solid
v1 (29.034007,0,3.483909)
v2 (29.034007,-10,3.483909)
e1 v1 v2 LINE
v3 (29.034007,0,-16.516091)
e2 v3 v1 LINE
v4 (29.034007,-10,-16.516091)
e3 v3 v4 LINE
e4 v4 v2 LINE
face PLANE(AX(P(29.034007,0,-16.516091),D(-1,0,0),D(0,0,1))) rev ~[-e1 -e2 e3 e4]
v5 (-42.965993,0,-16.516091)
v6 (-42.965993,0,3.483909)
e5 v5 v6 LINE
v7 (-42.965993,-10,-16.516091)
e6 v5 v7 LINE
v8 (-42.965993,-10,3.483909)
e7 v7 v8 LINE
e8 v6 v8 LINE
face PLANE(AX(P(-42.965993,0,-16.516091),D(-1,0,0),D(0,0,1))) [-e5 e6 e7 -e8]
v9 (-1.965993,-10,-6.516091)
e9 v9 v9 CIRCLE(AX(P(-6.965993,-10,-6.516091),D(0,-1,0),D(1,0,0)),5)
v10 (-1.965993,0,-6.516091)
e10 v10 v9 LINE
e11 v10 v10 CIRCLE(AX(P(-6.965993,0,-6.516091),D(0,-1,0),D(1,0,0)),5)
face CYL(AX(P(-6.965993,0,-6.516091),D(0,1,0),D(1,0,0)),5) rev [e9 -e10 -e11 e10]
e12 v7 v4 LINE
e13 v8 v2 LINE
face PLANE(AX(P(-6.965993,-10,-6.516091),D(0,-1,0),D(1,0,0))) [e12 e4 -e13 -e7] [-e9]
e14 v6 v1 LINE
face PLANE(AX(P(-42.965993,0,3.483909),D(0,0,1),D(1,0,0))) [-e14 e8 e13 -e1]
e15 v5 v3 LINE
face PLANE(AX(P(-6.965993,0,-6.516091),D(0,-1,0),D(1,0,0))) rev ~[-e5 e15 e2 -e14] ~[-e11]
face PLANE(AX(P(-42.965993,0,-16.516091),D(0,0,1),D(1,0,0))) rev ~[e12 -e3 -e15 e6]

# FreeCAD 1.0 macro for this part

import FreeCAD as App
import Part
import Sketcher
from FreeCAD import Vector


def add_polygon(sketch, points):
    """Adds a closed chain of lines whose ends are joined by coincident constraints."""
    first, n = sketch.GeometryCount, len(points)
    for a, b in zip(points, points[1:] + points[:1]):
        sketch.addGeometry(Part.LineSegment(App.Vector(*a, 0), App.Vector(*b, 0)), False)
    for i in range(n):
        sketch.addConstraint(Sketcher.Constraint("Coincident", first + i, 2, first + (i + 1) % n, 1))

doc = App.newDocument("Part")
params = doc.addObject("Spreadsheet::Sheet", "Params")
for row, (alias, value) in enumerate([
    ("sketch1_diameter", "10 mm"),
    ("sketch1_width", "72 mm"),
    ("sketch1_height", "20 mm"),
    ("pad1_length", "10 mm"),
], start=1):
    params.set(f"A{row}", alias)
    params.set(f"B{row}", "=" + value)
    params.setAlias(f"B{row}", alias)

body = doc.addObject("PartDesign::Body", "Body")

# Sketch on XZ plane
sketch1 = doc.addObject("Sketcher::SketchObject", "Sketch")
body.addObject(sketch1)
sketch1.AttachmentSupport = (doc.XZ_Plane, [""])
sketch1.MapMode = "FlatFace"
add_polygon(sketch1, [(-43, 3), (-43, -17), (29, -17), (29, 3)])  # lines 0-3
sketch1.addGeometry(Part.Circle(Vector(-7, -7, 0), Vector(0, 0, 1), 5), False)  # 4
sketch1.addConstraint([
    Sketcher.Constraint("Vertical", 0),
    Sketcher.Constraint("Horizontal", 1),
    Sketcher.Constraint("Vertical", 2),
    Sketcher.Constraint("Horizontal", 3),
    Sketcher.Constraint("Diameter", 4, 10.0),
    Sketcher.Constraint("DistanceX", 1, 1, 1, 2, 72.0),
    Sketcher.Constraint("DistanceY", 0, 2, 0, 1, 20.0),
    Sketcher.Constraint("DistanceX", 0, 2, 4, 3, 36.0),
    Sketcher.Constraint("DistanceY", 0, 2, 4, 3, 10.0),
    Sketcher.Constraint("DistanceY", 4, 3, -1, 1, 6.516091),
    Sketcher.Constraint("DistanceX", 4, 3, -1, 1, 6.965993),
])
sketch1.setExpression("Constraints[8]", "Params.sketch1_diameter")
sketch1.setExpression("Constraints[9]", "Params.sketch1_width")
sketch1.setExpression("Constraints[10]", "Params.sketch1_height")
pad1 = doc.addObject("PartDesign::Pad", "Pad")
body.addObject(pad1)
pad1.Profile = sketch1
pad1.setExpression("Length", "Params.pad1_length")

doc.recompute()
